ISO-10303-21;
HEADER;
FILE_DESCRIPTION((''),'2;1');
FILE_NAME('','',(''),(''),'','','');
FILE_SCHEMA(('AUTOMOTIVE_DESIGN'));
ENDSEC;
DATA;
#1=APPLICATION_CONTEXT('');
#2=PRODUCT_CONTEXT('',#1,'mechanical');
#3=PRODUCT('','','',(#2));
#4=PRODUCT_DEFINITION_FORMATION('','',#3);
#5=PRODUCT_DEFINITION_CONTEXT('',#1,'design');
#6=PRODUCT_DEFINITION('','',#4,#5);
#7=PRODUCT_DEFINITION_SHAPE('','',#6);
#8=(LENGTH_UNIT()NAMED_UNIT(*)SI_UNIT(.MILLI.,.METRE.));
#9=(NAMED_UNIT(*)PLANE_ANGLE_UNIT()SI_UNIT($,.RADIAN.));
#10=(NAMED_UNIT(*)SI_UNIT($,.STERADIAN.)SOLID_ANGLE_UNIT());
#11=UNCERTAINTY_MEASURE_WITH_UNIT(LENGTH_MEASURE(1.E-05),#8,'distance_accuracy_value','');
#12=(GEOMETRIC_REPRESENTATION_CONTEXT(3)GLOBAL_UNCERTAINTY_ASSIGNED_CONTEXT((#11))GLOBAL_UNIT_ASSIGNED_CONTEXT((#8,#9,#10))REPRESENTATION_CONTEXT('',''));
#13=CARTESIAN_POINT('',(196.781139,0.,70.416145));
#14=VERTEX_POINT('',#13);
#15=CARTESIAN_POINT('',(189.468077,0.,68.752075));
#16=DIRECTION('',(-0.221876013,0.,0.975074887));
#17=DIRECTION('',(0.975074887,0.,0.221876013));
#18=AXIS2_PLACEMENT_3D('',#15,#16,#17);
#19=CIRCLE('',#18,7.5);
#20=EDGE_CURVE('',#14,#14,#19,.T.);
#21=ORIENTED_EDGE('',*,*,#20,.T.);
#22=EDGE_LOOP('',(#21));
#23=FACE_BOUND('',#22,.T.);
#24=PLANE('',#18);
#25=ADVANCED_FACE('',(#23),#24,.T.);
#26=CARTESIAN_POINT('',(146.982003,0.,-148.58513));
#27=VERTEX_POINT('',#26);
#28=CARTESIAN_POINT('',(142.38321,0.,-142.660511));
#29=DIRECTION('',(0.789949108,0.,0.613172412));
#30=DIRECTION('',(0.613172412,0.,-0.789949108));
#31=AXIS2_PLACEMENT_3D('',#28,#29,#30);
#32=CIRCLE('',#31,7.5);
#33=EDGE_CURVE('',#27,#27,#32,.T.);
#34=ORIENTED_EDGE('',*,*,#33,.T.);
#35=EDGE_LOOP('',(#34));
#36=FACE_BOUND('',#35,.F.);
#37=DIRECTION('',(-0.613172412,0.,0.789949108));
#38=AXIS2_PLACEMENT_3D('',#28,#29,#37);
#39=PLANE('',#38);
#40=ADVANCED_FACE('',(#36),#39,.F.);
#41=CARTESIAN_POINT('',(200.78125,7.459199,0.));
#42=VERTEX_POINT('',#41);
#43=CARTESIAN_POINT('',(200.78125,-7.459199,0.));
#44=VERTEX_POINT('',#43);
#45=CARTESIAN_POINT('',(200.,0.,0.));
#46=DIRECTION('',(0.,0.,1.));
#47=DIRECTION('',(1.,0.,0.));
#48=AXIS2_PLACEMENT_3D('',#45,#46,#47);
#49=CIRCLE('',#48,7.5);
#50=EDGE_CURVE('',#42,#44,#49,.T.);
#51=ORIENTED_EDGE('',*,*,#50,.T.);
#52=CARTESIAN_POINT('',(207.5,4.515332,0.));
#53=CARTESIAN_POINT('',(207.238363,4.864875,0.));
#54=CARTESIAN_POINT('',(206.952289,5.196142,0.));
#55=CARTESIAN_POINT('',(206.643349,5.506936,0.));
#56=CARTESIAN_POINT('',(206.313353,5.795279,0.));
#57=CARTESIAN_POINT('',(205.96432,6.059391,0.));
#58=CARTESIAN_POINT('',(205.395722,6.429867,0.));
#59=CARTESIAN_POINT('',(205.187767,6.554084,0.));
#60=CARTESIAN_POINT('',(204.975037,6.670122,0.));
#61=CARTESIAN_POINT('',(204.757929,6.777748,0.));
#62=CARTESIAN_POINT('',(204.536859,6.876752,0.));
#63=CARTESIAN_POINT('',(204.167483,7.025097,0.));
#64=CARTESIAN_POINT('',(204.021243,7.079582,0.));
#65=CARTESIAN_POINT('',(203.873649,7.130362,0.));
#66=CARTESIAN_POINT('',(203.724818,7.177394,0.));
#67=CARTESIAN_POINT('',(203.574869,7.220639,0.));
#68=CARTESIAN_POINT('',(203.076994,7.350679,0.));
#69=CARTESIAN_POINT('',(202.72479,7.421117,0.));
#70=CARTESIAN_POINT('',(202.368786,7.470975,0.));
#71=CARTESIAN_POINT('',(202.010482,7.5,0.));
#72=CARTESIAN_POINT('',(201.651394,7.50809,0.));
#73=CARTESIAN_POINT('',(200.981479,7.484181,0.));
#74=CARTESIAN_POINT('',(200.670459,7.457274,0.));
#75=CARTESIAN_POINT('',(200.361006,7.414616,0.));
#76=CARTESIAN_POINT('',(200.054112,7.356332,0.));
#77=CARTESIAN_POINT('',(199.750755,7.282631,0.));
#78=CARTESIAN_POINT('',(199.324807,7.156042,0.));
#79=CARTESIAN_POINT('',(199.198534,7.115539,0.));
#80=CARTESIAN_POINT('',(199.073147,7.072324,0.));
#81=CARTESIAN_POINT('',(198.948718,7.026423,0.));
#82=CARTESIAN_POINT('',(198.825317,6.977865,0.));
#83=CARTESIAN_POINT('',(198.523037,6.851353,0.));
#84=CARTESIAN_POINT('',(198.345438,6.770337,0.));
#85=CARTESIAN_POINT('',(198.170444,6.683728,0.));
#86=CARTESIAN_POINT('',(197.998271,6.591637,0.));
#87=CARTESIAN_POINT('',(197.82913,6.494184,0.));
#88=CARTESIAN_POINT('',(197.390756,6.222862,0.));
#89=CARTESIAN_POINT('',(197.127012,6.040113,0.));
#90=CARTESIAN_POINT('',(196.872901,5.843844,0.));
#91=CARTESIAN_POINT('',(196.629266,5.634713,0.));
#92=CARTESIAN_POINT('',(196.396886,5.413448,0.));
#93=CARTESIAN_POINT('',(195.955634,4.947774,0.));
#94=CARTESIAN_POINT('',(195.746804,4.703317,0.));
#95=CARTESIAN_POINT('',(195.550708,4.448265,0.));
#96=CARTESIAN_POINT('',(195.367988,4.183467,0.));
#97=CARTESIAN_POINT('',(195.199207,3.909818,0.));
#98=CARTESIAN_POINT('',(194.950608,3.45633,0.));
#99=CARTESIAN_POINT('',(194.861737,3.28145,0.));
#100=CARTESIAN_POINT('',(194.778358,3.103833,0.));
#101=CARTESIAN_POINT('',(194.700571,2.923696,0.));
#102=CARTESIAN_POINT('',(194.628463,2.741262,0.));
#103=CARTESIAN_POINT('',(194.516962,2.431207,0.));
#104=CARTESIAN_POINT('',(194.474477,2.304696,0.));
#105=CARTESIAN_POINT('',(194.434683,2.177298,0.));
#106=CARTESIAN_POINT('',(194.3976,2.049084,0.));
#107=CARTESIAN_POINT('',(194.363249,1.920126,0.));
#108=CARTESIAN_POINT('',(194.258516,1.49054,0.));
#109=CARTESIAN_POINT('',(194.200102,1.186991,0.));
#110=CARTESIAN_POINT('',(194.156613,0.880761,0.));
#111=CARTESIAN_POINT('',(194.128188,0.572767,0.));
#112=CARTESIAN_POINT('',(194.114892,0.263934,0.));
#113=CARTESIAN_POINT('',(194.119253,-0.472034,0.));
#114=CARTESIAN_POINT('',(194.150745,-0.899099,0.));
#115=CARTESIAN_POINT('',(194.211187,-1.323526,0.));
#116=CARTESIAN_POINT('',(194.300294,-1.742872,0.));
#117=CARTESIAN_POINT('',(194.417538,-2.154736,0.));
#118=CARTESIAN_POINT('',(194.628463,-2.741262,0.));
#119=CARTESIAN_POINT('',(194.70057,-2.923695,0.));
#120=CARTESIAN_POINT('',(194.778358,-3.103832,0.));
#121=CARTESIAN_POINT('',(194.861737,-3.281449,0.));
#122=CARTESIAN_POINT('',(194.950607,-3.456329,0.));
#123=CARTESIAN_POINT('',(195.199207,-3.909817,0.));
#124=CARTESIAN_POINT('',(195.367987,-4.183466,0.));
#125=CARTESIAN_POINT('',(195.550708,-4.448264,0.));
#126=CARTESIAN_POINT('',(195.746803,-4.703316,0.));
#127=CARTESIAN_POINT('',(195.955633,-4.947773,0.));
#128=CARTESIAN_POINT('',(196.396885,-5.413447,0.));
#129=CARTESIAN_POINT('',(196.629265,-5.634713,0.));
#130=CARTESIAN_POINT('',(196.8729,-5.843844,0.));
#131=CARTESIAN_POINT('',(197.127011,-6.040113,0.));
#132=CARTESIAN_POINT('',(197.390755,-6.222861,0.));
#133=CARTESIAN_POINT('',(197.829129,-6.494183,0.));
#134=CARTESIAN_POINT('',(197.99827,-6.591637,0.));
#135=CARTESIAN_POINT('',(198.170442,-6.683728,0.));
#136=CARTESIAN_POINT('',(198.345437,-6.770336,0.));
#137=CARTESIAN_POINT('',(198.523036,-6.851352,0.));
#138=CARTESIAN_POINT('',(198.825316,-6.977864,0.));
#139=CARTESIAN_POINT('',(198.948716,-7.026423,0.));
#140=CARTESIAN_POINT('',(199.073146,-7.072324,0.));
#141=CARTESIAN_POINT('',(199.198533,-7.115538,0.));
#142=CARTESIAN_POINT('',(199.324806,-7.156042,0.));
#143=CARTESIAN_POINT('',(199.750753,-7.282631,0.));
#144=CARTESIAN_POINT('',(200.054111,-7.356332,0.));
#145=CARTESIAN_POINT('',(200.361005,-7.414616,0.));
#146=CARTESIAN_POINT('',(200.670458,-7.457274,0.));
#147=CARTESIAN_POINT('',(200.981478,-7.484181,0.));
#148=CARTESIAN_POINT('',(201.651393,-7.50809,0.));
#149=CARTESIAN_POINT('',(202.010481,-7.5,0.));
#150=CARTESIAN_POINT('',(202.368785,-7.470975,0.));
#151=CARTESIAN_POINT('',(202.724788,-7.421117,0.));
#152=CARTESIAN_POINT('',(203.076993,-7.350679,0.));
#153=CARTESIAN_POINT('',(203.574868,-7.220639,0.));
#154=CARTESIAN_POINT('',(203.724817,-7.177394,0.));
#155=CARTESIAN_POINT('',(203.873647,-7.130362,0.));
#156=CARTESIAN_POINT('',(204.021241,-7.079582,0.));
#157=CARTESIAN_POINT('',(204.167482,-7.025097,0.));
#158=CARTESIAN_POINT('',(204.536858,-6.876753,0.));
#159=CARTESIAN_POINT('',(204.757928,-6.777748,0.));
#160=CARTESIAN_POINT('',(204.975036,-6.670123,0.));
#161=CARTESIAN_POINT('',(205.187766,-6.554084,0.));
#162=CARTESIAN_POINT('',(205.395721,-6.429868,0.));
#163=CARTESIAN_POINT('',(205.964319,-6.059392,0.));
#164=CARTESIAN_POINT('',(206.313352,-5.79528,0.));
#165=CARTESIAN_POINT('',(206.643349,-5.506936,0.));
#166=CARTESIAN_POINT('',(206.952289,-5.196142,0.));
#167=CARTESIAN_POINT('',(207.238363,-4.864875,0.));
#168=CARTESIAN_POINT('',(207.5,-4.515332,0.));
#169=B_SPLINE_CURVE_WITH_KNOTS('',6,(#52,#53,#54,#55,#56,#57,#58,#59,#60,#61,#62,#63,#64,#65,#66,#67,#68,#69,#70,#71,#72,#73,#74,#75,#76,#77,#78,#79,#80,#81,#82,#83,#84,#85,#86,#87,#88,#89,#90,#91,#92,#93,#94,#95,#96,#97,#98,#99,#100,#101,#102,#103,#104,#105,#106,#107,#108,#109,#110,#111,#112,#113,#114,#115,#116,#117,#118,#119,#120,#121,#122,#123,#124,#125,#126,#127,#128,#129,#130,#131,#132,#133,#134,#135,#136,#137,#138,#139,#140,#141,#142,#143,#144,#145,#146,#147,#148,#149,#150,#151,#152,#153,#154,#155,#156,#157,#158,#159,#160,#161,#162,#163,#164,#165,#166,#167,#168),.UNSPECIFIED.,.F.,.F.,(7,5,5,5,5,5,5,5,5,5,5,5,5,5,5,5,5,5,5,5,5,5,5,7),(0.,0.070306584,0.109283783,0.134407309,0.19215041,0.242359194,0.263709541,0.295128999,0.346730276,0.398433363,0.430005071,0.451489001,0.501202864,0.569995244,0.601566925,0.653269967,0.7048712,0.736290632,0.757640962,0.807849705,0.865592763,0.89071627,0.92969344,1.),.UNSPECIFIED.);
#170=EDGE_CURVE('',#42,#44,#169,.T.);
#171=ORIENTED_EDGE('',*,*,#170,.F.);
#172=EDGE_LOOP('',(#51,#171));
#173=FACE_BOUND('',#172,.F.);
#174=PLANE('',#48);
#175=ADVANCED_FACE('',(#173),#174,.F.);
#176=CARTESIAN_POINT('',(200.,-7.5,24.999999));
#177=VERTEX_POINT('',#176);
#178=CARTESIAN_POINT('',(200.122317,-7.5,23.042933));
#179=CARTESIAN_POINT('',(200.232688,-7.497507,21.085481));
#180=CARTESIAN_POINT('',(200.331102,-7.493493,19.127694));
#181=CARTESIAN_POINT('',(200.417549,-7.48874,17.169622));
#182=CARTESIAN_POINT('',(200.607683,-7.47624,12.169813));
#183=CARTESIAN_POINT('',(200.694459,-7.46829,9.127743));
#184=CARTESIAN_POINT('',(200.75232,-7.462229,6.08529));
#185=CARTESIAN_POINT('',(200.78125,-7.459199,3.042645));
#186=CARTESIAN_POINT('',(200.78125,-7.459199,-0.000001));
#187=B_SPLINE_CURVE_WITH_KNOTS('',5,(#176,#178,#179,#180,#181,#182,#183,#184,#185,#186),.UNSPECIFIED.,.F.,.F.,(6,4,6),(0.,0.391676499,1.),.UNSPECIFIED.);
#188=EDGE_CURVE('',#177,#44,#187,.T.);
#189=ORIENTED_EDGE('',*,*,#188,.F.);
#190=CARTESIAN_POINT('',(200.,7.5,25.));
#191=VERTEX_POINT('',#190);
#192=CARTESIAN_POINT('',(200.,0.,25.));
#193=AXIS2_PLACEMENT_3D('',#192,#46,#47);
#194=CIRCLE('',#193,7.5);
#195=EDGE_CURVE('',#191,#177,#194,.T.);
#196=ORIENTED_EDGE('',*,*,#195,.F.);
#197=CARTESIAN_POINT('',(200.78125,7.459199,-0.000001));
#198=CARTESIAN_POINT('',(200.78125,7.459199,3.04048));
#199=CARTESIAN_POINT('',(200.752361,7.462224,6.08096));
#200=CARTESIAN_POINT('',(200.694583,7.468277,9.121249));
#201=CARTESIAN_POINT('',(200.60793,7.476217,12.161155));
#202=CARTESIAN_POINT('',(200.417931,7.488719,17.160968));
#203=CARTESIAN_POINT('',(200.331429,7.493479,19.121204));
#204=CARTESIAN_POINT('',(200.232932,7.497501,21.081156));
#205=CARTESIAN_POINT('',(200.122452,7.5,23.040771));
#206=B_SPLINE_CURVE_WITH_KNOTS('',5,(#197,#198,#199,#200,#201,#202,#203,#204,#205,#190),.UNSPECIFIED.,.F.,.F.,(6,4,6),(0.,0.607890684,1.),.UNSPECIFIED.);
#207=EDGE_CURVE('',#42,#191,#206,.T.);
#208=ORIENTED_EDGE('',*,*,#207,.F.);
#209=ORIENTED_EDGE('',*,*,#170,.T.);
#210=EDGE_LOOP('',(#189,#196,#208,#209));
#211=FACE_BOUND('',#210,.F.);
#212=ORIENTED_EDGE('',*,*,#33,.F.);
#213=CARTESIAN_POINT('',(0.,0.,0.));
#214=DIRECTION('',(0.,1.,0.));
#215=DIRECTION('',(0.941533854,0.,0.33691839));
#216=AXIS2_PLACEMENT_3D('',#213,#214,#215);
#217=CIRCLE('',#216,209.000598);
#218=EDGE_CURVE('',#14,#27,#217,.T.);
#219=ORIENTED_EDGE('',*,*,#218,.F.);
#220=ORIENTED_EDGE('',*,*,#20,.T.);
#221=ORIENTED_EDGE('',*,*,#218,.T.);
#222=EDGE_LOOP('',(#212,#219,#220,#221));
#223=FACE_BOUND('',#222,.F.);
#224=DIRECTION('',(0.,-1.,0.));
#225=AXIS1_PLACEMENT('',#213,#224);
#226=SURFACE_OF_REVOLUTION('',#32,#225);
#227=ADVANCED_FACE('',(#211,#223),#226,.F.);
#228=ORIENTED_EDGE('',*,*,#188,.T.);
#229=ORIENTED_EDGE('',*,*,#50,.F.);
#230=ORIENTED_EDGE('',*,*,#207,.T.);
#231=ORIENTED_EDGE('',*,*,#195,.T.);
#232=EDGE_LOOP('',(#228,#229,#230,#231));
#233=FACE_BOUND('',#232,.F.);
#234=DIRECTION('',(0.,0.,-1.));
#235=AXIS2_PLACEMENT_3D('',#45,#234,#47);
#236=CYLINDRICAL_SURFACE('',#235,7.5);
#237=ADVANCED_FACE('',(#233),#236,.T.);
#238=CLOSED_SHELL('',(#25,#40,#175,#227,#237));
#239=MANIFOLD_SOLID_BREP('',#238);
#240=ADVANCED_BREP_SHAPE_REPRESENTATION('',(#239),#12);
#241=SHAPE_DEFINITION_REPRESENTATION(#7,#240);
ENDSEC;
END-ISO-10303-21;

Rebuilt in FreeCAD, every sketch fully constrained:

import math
import FreeCAD as App
import Part
import Sketcher
Q = App.Units.Quantity

doc = App.newDocument("Part")
body = doc.addObject("PartDesign::Body", "Body")

# Sketch on XY plane
sketch1 = body.newObject("Sketcher::SketchObject", "Sketch")
sketch1.AttachmentSupport = (doc.getObject("XY_Plane"), [""])
sketch1.MapMode = "FlatFace"
sketch1.addGeometry(Part.Circle(App.Vector(200, 0, 0), App.Vector(0, 0, 1), 8), False)
sketch1.addConstraint([
    Sketcher.Constraint("PointOnObject", 0, 3, -1),
    Sketcher.Constraint("Diameter", 0, Q("15 mm")),
    Sketcher.Constraint("DistanceX", -1, 1, 0, 3, Q("200 mm")),
])
pad1 = body.newObject("PartDesign::Pad", "Pad")
pad1.Profile = sketch1
pad1.Length = 25

# Sketch on XY plane
sketch2 = body.newObject("Sketcher::SketchObject", "Sketch001")
sketch2.AttachmentSupport = (doc.getObject("XY_Plane"), [""])
sketch2.MapMode = "FlatFace"
sketch2.AttachmentOffset = App.Placement(App.Vector(0, 0, 25), App.Rotation())
sketch2.addGeometry(Part.Circle(App.Vector(200, 0, 0), App.Vector(0, 0, 1), 8), False)
sketch2.addConstraint([
    Sketcher.Constraint("PointOnObject", 0, 3, -1),
    Sketcher.Constraint("Diameter", 0, Q("15 mm")),
    Sketcher.Constraint("DistanceX", -1, 1, 0, 3, Q("200 mm")),
])

# Sketch on XZ plane
sketch3 = body.newObject("Sketcher::SketchObject", "Sketch002")
sketch3.AttachmentSupport = (doc.getObject("XZ_Plane"), [""])
sketch3.MapMode = "FlatFace"
sketch3.addGeometry(Part.ArcOfCircle(Part.Circle(App.Vector(0, 0, 0), App.Vector(0, 0, 1), 200), math.radians(-45), math.radians(20)), False)
sketch3.addConstraint([
    Sketcher.Constraint("Coincident", 0, 3, -1, 1),
    Sketcher.Constraint("Radius", 0, Q("200 mm")),
    Sketcher.Constraint("DistanceY", -1, 1, 0, 2, Q("68.404029 mm")),
    Sketcher.Constraint("DistanceX", -1, 1, 0, 1, Q("141.421356 mm")),
])
doc.recompute()

additivepipe = body.newObject("PartDesign::AdditivePipe", "AdditivePipe")
additivepipe.Profile = sketch2
additivepipe.Spine = (sketch3, ["Edge1"])

doc.recompute()
